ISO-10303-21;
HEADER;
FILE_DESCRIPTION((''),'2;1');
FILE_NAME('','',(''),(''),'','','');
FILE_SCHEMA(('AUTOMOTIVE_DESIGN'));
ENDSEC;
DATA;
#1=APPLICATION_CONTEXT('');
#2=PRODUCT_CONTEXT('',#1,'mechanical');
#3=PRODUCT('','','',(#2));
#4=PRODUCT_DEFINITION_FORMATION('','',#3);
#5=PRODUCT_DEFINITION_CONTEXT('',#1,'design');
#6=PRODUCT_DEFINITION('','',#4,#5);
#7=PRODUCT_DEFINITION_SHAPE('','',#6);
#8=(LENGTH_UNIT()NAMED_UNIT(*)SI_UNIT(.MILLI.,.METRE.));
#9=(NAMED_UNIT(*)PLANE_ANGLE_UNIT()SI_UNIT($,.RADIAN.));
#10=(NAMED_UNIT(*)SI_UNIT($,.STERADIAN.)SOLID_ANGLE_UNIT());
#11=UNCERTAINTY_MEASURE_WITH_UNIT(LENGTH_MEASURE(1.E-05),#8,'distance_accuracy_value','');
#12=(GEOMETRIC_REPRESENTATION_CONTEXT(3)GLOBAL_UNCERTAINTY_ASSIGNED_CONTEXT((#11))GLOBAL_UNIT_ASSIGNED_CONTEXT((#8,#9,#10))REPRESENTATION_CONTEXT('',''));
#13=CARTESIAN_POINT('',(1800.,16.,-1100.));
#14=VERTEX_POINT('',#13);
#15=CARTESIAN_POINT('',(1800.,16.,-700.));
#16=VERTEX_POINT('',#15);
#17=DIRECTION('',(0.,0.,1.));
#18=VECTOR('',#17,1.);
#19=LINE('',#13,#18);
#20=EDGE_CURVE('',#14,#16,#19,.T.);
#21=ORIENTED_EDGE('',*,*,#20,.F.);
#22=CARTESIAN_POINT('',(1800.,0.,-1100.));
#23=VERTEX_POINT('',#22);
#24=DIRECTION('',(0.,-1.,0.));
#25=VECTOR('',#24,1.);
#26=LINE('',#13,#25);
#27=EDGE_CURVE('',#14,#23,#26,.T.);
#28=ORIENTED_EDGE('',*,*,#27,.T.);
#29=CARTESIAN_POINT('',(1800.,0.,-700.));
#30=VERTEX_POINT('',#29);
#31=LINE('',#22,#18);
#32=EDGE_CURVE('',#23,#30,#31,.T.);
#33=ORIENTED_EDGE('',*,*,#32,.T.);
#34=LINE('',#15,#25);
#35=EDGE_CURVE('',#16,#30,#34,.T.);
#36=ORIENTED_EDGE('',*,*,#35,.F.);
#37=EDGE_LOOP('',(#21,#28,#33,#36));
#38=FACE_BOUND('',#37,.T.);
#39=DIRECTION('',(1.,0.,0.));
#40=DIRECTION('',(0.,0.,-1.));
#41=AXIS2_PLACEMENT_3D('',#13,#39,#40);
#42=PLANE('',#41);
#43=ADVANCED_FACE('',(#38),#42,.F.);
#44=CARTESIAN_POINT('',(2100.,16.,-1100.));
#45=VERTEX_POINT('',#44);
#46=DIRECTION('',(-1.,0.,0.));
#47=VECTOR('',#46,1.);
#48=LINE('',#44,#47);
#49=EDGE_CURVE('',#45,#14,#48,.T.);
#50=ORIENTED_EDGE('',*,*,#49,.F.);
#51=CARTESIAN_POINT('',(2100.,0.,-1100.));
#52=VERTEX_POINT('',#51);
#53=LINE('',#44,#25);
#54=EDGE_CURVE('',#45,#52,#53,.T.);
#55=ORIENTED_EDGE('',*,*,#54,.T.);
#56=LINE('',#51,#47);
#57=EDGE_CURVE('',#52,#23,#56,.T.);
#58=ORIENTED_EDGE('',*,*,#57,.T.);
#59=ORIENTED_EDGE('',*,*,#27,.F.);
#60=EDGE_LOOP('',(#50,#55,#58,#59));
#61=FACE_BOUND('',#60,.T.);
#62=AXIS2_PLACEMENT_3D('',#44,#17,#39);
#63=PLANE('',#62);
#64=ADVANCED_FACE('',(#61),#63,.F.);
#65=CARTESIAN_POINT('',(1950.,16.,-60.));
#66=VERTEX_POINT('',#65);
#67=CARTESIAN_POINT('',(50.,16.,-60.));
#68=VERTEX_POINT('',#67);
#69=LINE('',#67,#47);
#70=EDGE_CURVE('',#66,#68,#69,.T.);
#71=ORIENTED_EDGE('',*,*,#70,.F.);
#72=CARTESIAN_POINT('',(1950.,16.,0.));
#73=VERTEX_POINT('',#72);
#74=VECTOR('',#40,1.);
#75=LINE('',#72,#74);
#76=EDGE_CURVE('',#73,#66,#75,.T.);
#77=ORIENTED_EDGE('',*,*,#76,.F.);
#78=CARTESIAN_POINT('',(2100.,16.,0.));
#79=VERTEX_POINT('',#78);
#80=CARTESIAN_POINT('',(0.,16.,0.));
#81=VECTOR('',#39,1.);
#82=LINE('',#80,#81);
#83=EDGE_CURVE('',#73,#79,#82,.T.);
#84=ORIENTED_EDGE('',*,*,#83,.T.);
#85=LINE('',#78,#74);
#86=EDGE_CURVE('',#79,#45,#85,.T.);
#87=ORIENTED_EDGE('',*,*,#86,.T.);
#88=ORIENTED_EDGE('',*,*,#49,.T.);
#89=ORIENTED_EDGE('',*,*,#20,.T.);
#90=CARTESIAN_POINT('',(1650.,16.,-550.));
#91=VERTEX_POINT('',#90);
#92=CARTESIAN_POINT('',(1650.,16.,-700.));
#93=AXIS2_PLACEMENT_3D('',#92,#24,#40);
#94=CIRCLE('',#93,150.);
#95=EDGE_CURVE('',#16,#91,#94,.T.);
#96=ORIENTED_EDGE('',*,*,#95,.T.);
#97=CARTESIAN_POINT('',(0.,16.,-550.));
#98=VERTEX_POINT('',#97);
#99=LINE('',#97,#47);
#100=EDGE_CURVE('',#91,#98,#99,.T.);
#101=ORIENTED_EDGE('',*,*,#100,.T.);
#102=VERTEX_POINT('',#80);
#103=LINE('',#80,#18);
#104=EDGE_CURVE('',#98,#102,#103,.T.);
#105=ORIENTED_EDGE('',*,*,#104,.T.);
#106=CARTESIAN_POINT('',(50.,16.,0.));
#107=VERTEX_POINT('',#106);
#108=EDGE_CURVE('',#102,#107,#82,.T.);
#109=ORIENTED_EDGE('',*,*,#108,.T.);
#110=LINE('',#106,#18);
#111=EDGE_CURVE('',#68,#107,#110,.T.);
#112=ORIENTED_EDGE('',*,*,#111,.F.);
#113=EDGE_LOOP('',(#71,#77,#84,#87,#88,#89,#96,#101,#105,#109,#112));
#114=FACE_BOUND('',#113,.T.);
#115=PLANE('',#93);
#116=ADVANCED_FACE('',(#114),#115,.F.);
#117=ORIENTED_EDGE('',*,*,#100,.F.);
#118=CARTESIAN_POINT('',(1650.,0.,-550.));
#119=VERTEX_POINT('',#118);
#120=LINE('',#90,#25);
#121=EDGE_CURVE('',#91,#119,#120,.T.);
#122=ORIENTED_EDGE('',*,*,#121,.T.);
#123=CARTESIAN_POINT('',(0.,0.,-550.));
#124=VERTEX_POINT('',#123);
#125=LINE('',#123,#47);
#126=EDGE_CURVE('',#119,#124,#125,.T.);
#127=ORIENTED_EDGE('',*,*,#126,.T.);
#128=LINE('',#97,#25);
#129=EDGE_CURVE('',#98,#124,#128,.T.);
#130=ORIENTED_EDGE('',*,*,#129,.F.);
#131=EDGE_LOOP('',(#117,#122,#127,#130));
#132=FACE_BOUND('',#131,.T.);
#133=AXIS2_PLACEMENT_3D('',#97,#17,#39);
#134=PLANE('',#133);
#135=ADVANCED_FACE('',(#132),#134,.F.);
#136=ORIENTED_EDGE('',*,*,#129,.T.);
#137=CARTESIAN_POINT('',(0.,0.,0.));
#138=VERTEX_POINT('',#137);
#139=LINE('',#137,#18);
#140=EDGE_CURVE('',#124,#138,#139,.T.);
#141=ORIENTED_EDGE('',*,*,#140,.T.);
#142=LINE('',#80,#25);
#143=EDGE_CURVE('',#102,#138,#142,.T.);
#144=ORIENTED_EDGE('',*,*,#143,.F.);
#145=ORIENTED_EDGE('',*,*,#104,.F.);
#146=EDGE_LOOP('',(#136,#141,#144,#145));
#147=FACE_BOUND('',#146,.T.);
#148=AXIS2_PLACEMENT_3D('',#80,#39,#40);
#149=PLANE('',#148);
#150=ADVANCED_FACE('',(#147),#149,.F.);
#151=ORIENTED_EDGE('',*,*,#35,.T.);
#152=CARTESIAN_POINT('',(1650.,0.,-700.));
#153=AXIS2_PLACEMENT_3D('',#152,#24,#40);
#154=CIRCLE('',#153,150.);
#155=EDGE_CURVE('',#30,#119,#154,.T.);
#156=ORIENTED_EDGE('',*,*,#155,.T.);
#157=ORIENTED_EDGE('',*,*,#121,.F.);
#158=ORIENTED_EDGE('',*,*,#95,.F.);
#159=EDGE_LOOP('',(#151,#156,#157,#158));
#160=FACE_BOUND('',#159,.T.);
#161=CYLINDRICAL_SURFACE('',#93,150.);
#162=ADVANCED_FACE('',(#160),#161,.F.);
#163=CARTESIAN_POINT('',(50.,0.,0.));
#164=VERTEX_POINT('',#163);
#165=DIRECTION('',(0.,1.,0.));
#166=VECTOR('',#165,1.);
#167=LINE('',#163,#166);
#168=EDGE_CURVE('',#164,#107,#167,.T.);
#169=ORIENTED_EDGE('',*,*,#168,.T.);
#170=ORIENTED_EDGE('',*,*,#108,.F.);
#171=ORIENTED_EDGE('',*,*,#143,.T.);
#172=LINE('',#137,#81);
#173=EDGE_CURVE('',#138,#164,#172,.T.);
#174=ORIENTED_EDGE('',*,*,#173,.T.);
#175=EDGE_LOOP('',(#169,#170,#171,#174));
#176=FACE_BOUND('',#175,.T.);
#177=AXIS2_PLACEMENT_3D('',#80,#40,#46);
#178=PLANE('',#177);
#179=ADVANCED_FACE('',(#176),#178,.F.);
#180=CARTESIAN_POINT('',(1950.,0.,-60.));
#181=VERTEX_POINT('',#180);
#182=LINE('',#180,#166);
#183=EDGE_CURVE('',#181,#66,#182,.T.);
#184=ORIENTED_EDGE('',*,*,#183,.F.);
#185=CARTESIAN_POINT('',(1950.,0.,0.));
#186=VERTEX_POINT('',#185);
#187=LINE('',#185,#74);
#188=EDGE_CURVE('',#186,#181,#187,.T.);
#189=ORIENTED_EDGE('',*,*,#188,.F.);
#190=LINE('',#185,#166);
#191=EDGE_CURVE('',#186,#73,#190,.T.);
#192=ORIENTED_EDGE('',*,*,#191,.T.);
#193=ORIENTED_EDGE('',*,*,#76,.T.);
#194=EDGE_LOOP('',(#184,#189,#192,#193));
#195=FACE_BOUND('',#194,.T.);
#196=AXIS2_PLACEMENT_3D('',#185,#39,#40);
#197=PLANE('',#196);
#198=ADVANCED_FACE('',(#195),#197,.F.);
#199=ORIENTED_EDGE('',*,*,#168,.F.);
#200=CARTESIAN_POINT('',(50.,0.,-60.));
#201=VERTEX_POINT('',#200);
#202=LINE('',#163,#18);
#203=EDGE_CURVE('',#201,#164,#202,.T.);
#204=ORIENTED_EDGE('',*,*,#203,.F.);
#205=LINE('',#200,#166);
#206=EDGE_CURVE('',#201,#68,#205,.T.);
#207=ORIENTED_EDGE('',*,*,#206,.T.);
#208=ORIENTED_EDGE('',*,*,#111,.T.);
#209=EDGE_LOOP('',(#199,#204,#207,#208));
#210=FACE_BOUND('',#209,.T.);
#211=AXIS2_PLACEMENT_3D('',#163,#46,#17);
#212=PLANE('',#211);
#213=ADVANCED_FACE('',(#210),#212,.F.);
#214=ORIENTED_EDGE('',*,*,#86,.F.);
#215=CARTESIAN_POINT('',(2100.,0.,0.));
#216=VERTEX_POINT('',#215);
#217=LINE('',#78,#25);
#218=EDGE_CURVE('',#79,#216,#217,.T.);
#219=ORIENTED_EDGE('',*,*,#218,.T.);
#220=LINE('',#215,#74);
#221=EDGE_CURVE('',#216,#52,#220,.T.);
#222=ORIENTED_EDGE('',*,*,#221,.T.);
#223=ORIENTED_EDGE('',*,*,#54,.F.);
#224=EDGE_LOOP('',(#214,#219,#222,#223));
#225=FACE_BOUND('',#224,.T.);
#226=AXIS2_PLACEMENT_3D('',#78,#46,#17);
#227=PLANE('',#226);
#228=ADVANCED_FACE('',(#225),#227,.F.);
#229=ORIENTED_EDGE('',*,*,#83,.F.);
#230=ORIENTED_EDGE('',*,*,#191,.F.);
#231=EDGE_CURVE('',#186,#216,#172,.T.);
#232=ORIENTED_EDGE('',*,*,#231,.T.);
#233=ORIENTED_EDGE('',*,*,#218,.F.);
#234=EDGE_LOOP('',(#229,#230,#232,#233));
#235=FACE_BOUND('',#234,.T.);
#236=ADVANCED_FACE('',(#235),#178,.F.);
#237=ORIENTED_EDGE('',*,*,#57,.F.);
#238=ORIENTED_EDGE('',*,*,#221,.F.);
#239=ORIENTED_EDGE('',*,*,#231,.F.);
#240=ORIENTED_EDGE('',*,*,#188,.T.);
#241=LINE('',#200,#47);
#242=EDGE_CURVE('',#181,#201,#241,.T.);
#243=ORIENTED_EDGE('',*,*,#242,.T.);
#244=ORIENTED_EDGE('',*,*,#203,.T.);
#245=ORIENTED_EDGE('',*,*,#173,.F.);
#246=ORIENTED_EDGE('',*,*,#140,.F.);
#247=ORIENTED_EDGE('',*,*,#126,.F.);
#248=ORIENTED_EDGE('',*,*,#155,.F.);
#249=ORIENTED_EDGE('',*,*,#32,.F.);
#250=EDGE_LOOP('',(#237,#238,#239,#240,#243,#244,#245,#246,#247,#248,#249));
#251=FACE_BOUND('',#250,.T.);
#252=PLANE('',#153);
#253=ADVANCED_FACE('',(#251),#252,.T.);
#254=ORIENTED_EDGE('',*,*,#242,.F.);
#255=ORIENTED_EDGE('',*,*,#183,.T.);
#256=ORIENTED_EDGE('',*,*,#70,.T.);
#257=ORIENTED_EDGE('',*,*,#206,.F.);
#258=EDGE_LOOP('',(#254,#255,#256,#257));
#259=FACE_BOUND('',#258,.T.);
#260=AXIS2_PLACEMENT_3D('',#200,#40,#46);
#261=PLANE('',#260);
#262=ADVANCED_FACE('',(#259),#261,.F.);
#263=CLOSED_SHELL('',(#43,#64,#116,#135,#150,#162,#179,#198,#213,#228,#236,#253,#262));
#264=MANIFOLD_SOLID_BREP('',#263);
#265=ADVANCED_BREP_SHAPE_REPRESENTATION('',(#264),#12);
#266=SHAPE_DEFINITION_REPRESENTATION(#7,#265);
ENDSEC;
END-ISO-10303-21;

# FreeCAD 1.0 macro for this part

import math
import FreeCAD as App
import Part
import Sketcher
from FreeCAD import Vector


def add_polygon(sketch, points):
    """Adds a closed chain of lines whose ends are joined by coincident constraints."""
    first, n = sketch.GeometryCount, len(points)
    for a, b in zip(points, points[1:] + points[:1]):
        sketch.addGeometry(Part.LineSegment(App.Vector(*a, 0), App.Vector(*b, 0)), False)
    for i in range(n):
        sketch.addConstraint(Sketcher.Constraint("Coincident", first + i, 2, first + (i + 1) % n, 1))

doc = App.newDocument("Part")
params = doc.addObject("Spreadsheet::Sheet", "Params")
for row, (alias, value) in enumerate([
    ("sketch1_radius", "150 mm"),
    ("sketch1_width", "300 mm"),
    ("sketch1_width2", "1650 mm"),
    ("sketch1_height", "1100 mm"),
    ("sketch1_height2", "400 mm"),
    ("pad1_length", "16 mm"),
    ("sketch2_width", "1900 mm"),
    ("sketch2_height", "60 mm"),
], start=1):
    params.set(f"A{row}", alias)
    params.set(f"B{row}", "=" + value)
    params.setAlias(f"B{row}", alias)

body = doc.addObject("PartDesign::Body", "Body")

# Sketch on XZ plane
sketch1 = body.newObject("Sketcher::SketchObject", "Sketch")
sketch1.AttachmentSupport = (doc.getObject("XZ_Plane"), [""])
sketch1.MapMode = "FlatFace"
sketch1.addGeometry(Part.LineSegment(Vector(2100, 0, 0), Vector(2100, -1100, 0)), False)
sketch1.addGeometry(Part.LineSegment(Vector(2100, -1100, 0), Vector(1800, -1100, 0)), False)
sketch1.addGeometry(Part.LineSegment(Vector(1800, -1100, 0), Vector(1800, -700, 0)), False)
sketch1.addGeometry(Part.ArcOfCircle(Part.Circle(Vector(1650, -700, 0), Vector(0, 0, 1), 150), math.radians(0), math.radians(90)), False)
sketch1.addGeometry(Part.LineSegment(Vector(1650, -550, 0), Vector(0, -550, 0)), False)
sketch1.addGeometry(Part.LineSegment(Vector(0, -550, 0), Vector(0, 0, 0)), False)
sketch1.addGeometry(Part.LineSegment(Vector(0, 0, 0), Vector(2100, 0, 0)), False)
sketch1.addConstraint(Sketcher.Constraint("Coincident", 0, 2, 1, 1))
sketch1.addConstraint(Sketcher.Constraint("Coincident", 1, 2, 2, 1))
sketch1.addConstraint(Sketcher.Constraint("Tangent", 2, 2, 3, 1))
sketch1.addConstraint(Sketcher.Constraint("Tangent", 3, 2, 4, 1))
sketch1.addConstraint(Sketcher.Constraint("Coincident", 4, 2, 5, 1))
sketch1.addConstraint(Sketcher.Constraint("Coincident", 5, 2, 6, 1))
sketch1.addConstraint(Sketcher.Constraint("Coincident", 6, 2, 0, 1))
sketch1.addConstraint(Sketcher.Constraint("Vertical", 0))
sketch1.addConstraint(Sketcher.Constraint("Horizontal", 1))
sketch1.addConstraint(Sketcher.Constraint("Vertical", 2))
sketch1.addConstraint(Sketcher.Constraint("Horizontal", 4))
sketch1.addConstraint(Sketcher.Constraint("Vertical", 5))
sketch1.addConstraint(Sketcher.Constraint("Horizontal", 6))
sketch1.addConstraint(Sketcher.Constraint("Coincident", 5, 2, -1, 1))
sketch1.addConstraint(Sketcher.Constraint("Radius", 3, 150.0))
sketch1.addConstraint(Sketcher.Constraint("DistanceX", 1, 2, 1, 1, 300.0))
sketch1.addConstraint(Sketcher.Constraint("DistanceX", 4, 2, 4, 1, 1650.0))
sketch1.addConstraint(Sketcher.Constraint("DistanceY", 0, 2, 0, 1, 1100.0))
sketch1.addConstraint(Sketcher.Constraint("DistanceY", 2, 1, 2, 2, 400.0))
sketch1.setExpression("Constraints[14]", "Params.sketch1_radius")
sketch1.setExpression("Constraints[15]", "Params.sketch1_width")
sketch1.setExpression("Constraints[16]", "Params.sketch1_width2")
sketch1.setExpression("Constraints[17]", "Params.sketch1_height")
sketch1.setExpression("Constraints[18]", "Params.sketch1_height2")
pad1 = body.newObject("PartDesign::Pad", "Pad")
pad1.Profile = sketch1
pad1.setExpression("Length", "Params.pad1_length")
pad1.Reversed = True

# Sketch on XZ plane
sketch2 = body.newObject("Sketcher::SketchObject", "Sketch001")
sketch2.AttachmentSupport = (doc.getObject("XZ_Plane"), [""])
sketch2.MapMode = "FlatFace"
sketch2.AttachmentOffset = App.Placement(Vector(0, 0, -16), App.Rotation())
add_polygon(sketch2, [(50, -60), (50, 0), (1950, 0), (1950, -60)])  # lines 0-3
sketch2.addConstraint(Sketcher.Constraint("Vertical", 0))
sketch2.addConstraint(Sketcher.Constraint("Horizontal", 1))
sketch2.addConstraint(Sketcher.Constraint("Vertical", 2))
sketch2.addConstraint(Sketcher.Constraint("Horizontal", 3))
sketch2.addConstraint(Sketcher.Constraint("PointOnObject", 0, 2, -1))
sketch2.addConstraint(Sketcher.Constraint("DistanceX", 1, 1, 1, 2, 1900.0))
sketch2.addConstraint(Sketcher.Constraint("DistanceY", 0, 1, 0, 2, 60.0))
sketch2.addConstraint(Sketcher.Constraint("DistanceX", -1, 1, 0, 2, 50.0))
sketch2.setExpression("Constraints[9]", "Params.sketch2_width")
sketch2.setExpression("Constraints[10]", "Params.sketch2_height")
pocket1 = body.newObject("PartDesign::Pocket", "Pocket")
pocket1.Profile = sketch2
pocket1.Type = "ThroughAll"
pocket1.Reversed = True

doc.recompute()
